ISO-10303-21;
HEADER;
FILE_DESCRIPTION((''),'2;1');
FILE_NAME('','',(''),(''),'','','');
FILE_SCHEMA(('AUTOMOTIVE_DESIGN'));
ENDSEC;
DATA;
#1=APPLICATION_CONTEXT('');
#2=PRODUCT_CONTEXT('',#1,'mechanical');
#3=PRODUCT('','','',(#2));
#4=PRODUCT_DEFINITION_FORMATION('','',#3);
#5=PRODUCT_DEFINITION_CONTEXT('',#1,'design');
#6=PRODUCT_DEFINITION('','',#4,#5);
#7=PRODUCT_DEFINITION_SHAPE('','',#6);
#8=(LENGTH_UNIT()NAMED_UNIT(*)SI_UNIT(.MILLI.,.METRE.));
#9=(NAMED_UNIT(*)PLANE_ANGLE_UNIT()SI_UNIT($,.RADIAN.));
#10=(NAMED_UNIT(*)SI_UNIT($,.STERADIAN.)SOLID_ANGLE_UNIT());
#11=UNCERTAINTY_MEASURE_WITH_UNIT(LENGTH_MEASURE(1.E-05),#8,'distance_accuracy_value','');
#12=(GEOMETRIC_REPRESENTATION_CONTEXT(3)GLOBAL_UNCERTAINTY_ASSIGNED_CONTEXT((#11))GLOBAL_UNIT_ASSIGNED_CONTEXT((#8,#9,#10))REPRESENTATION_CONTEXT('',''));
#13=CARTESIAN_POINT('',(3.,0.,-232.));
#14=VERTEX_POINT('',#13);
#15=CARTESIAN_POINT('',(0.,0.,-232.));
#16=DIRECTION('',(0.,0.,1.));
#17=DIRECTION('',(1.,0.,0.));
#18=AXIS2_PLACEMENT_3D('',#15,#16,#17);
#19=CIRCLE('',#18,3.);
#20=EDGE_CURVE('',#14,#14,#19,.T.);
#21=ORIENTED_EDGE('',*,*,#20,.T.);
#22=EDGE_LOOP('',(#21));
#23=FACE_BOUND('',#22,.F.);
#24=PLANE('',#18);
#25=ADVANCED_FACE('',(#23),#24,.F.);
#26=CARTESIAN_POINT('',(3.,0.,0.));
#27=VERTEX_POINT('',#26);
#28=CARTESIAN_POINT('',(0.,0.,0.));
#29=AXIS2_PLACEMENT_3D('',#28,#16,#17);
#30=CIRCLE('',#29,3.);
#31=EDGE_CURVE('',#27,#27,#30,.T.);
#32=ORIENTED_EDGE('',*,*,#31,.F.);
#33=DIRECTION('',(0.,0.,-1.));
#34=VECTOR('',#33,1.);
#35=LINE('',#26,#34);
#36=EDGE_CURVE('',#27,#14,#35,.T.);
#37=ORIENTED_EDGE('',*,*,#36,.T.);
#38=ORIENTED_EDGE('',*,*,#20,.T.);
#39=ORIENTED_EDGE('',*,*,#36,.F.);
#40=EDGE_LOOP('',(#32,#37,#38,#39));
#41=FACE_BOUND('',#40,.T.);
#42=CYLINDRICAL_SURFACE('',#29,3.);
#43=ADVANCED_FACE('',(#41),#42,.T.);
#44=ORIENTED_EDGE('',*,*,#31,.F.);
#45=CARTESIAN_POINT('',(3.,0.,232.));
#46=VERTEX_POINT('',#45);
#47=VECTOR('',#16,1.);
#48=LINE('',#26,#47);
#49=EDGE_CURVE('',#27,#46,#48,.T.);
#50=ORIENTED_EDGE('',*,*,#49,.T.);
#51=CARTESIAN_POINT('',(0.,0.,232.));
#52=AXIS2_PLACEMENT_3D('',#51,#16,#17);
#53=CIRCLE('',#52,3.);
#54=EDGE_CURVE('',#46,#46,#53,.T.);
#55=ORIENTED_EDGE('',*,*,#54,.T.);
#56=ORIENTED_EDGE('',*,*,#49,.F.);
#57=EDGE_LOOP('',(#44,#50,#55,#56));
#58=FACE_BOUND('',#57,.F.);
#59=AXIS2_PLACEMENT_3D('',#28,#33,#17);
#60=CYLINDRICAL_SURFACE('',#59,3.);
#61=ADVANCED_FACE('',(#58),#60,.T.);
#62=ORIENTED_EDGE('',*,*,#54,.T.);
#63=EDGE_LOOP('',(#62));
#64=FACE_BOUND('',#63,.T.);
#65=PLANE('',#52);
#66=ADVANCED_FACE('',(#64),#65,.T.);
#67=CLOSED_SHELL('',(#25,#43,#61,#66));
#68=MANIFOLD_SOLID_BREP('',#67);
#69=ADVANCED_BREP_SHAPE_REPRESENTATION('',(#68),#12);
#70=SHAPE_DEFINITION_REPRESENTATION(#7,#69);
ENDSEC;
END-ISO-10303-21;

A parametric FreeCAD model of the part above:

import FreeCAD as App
import Part
import Sketcher

V = App.Vector

doc = App.newDocument("Part")
body = doc.addObject("PartDesign::Body", "Body")

sketch1 = body.newObject("Sketcher::SketchObject", "Sketch")
sketch1.AttachmentSupport = (doc.getObject("XY_Plane"), [""])
sketch1.MapMode = "FlatFace"
sketch1.addGeometry(Part.Circle(V(0, 0, 0), V(0, 0, 1), 3), False)
sketch1.addConstraint([
    Sketcher.Constraint("Coincident", 0, 3, -1, 1),
    Sketcher.Constraint("Diameter", 0, 6.0),
])
pad1 = body.newObject("PartDesign::Pad", "Pad")
pad1.Profile = sketch1
pad1.Length = 464
pad1.Midplane = True

doc.recompute()
